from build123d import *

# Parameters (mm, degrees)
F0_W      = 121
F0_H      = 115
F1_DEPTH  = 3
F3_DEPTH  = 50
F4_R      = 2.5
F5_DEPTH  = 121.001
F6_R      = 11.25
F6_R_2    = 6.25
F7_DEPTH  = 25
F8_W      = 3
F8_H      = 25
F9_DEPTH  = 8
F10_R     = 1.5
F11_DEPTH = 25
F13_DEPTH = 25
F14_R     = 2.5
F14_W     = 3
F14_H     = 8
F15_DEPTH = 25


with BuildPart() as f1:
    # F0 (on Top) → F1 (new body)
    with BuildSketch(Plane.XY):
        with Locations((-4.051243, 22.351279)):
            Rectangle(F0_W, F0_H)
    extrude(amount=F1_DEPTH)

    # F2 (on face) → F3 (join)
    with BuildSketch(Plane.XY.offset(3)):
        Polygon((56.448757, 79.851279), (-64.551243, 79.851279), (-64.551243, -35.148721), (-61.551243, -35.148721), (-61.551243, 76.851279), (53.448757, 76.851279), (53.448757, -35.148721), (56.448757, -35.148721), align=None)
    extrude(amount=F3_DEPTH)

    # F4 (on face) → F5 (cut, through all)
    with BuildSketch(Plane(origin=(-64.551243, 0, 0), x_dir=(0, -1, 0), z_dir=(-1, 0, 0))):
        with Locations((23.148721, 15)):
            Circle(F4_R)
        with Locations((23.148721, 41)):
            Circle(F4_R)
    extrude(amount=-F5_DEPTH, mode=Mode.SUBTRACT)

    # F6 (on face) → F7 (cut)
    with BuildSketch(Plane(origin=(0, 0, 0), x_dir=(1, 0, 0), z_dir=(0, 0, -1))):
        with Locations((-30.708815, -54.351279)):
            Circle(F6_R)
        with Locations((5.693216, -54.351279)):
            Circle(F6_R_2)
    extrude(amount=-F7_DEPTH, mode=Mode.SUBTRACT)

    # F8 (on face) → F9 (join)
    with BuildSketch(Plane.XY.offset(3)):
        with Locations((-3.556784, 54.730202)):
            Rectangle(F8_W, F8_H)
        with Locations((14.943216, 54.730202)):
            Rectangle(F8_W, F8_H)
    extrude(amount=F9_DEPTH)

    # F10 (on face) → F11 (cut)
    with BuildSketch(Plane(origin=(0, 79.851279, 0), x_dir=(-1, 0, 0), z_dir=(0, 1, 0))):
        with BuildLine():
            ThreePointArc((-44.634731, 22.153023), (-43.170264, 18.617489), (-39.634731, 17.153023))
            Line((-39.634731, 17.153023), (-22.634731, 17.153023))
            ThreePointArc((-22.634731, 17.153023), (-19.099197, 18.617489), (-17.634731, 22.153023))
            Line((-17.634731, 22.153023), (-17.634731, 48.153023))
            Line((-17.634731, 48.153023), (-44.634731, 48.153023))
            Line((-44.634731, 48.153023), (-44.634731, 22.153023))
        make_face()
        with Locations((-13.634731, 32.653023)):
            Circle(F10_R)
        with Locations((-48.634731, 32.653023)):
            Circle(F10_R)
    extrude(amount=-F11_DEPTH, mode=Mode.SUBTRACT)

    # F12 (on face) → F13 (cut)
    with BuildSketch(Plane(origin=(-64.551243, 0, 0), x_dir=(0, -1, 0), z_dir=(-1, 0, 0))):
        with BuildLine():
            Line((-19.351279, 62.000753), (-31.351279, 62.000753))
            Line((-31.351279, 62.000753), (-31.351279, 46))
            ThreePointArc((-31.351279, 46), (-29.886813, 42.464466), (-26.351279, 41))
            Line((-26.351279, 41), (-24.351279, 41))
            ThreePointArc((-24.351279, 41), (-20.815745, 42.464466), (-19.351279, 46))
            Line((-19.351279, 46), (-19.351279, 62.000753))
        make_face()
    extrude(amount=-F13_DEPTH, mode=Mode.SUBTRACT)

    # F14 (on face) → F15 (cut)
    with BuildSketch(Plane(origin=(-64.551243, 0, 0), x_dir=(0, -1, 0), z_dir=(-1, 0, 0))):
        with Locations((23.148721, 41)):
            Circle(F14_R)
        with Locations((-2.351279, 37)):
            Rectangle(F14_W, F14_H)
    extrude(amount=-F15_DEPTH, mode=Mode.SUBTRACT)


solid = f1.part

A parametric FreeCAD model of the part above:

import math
import FreeCAD as App
import Part
import Sketcher
from FreeCAD import Vector
Q = App.Units.Quantity

doc = App.newDocument("Part")
body = doc.addObject("PartDesign::Body", "Body")

# Sketch on XY plane
sketch1 = body.newObject("Sketcher::SketchObject", "Sketch")
sketch1.AttachmentSupport = (doc.getObject("XY_Plane"), [""])
sketch1.MapMode = "FlatFace"
sketch1.addGeometry(Part.LineSegment(Vector(-65, 80, 0), Vector(-65, -35, 0)), False)
sketch1.addGeometry(Part.LineSegment(Vector(-65, -35, 0), Vector(56, -35, 0)), False)
sketch1.addGeometry(Part.LineSegment(Vector(56, -35, 0), Vector(56, 80, 0)), False)
sketch1.addGeometry(Part.LineSegment(Vector(56, 80, 0), Vector(-65, 80, 0)), False)
sketch1.addConstraint(Sketcher.Constraint("Coincident", 0, 2, 1, 1))
sketch1.addConstraint(Sketcher.Constraint("Coincident", 1, 2, 2, 1))
sketch1.addConstraint(Sketcher.Constraint("Coincident", 2, 2, 3, 1))
sketch1.addConstraint(Sketcher.Constraint("Coincident", 3, 2, 0, 1))
sketch1.addConstraint(Sketcher.Constraint("Vertical", 0))
sketch1.addConstraint(Sketcher.Constraint("Horizontal", 1))
sketch1.addConstraint(Sketcher.Constraint("Vertical", 2))
sketch1.addConstraint(Sketcher.Constraint("Horizontal", 3))
sketch1.addConstraint(Sketcher.Constraint("DistanceX", 1, 1, 1, 2, Q("121 mm")))
sketch1.addConstraint(Sketcher.Constraint("DistanceY", 0, 2, 0, 1, Q("115 mm")))
sketch1.addConstraint(Sketcher.Constraint("DistanceY", 0, 2, -1, 1, Q("35.148721 mm")))
sketch1.addConstraint(Sketcher.Constraint("DistanceX", 0, 2, -1, 1, Q("64.551243 mm")))
pad1 = body.newObject("PartDesign::Pad", "Pad")
pad1.Profile = sketch1
pad1.Length = 3

# Sketch on XY plane
sketch2 = body.newObject("Sketcher::SketchObject", "Sketch001")
sketch2.AttachmentSupport = (doc.getObject("XY_Plane"), [""])
sketch2.MapMode = "FlatFace"
sketch2.AttachmentOffset = App.Placement(Vector(0, 0, 3), App.Rotation())
sketch2.addGeometry(Part.LineSegment(Vector(56.4, 79.9, 0), Vector(-64.6, 79.9, 0)), False)
sketch2.addGeometry(Part.LineSegment(Vector(-64.6, 79.9, 0), Vector(-64.6, -35.1, 0)), False)
sketch2.addGeometry(Part.LineSegment(Vector(-64.6, -35.1, 0), Vector(-61.6, -35.1, 0)), False)
sketch2.addGeometry(Part.LineSegment(Vector(-61.6, -35.1, 0), Vector(-61.6, 76.9, 0)), False)
sketch2.addGeometry(Part.LineSegment(Vector(-61.6, 76.9, 0), Vector(53.4, 76.9, 0)), False)
sketch2.addGeometry(Part.LineSegment(Vector(53.4, 76.9, 0), Vector(53.4, -35.1, 0)), False)
sketch2.addGeometry(Part.LineSegment(Vector(53.4, -35.1, 0), Vector(56.4, -35.1, 0)), False)
sketch2.addGeometry(Part.LineSegment(Vector(56.4, -35.1, 0), Vector(56.4, 79.9, 0)), False)
sketch2.addConstraint(Sketcher.Constraint("Coincident", 0, 2, 1, 1))
sketch2.addConstraint(Sketcher.Constraint("Coincident", 1, 2, 2, 1))
sketch2.addConstraint(Sketcher.Constraint("Coincident", 2, 2, 3, 1))
sketch2.addConstraint(Sketcher.Constraint("Coincident", 3, 2, 4, 1))
sketch2.addConstraint(Sketcher.Constraint("Coincident", 4, 2, 5, 1))
sketch2.addConstraint(Sketcher.Constraint("Coincident", 5, 2, 6, 1))
sketch2.addConstraint(Sketcher.Constraint("Coincident", 6, 2, 7, 1))
sketch2.addConstraint(Sketcher.Constraint("Coincident", 7, 2, 0, 1))
sketch2.addConstraint(Sketcher.Constraint("Horizontal", 0))
sketch2.addConstraint(Sketcher.Constraint("Vertical", 1))
sketch2.addConstraint(Sketcher.Constraint("Horizontal", 2))
sketch2.addConstraint(Sketcher.Constraint("Vertical", 3))
sketch2.addConstraint(Sketcher.Constraint("Horizontal", 4))
sketch2.addConstraint(Sketcher.Constraint("Vertical", 5))
sketch2.addConstraint(Sketcher.Constraint("Horizontal", 6))
sketch2.addConstraint(Sketcher.Constraint("Vertical", 7))
sketch2.addConstraint(Sketcher.Constraint("Horizontal", 2, 2, 5, 2))
sketch2.addConstraint(Sketcher.Constraint("Equal", 2, 6))
sketch2.addConstraint(Sketcher.Constraint("Equal", 4, 1))
sketch2.addConstraint(Sketcher.Constraint("DistanceX", 0, 2, 0, 1, Q("121 mm")))
sketch2.addConstraint(Sketcher.Constraint("DistanceX", 2, 1, 2, 2, Q("3 mm")))
sketch2.addConstraint(Sketcher.Constraint("DistanceY", 3, 1, 3, 2, Q("112 mm")))
sketch2.addConstraint(Sketcher.Constraint("DistanceY", -1, 1, 0, 2, Q("79.851279 mm")))
sketch2.addConstraint(Sketcher.Constraint("DistanceX", 0, 2, -1, 1, Q("64.551243 mm")))
pad2 = body.newObject("PartDesign::Pad", "Pad001")
pad2.Profile = sketch2
pad2.Length = 50

# Sketch on YZ plane
sketch3 = body.newObject("Sketcher::SketchObject", "Sketch002")
sketch3.AttachmentSupport = (doc.getObject("YZ_Plane"), [""])
sketch3.MapMode = "FlatFace"
sketch3.AttachmentOffset = App.Placement(Vector(0, 0, -64.551243), App.Rotation())
sketch3.addGeometry(Part.Circle(Vector(-23.1, 15, 0), Vector(0, 0, 1), 2.5), False)
sketch3.addGeometry(Part.Circle(Vector(-23.1, 41, 0), Vector(0, 0, 1), 2.5), False)
sketch3.addConstraint(Sketcher.Constraint("Equal", 0, 1))
sketch3.addConstraint(Sketcher.Constraint("Vertical", 0, 3, 1, 3))
sketch3.addConstraint(Sketcher.Constraint("Diameter", 0, Q("5 mm")))
sketch3.addConstraint(Sketcher.Constraint("DistanceY", -1, 1, 0, 3, Q("15 mm")))
sketch3.addConstraint(Sketcher.Constraint("DistanceY", -1, 1, 1, 3, Q("41 mm")))
sketch3.addConstraint(Sketcher.Constraint("DistanceX", 0, 3, -1, 1, Q("23.148721 mm")))
pocket1 = body.newObject("PartDesign::Pocket", "Pocket")
pocket1.Profile = sketch3
pocket1.Type = "ThroughAll"
pocket1.Reversed = True

# Sketch on XY plane
sketch4 = body.newObject("Sketcher::SketchObject", "Sketch003")
sketch4.AttachmentSupport = (doc.getObject("XY_Plane"), [""])
sketch4.MapMode = "FlatFace"
sketch4.addGeometry(Part.Circle(Vector(-31, 54, 0), Vector(0, 0, 1), 11), False)
sketch4.addGeometry(Part.Circle(Vector(6, 54, 0), Vector(0, 0, 1), 6), False)
sketch4.addConstraint(Sketcher.Constraint("Horizontal", 0, 3, 1, 3))
sketch4.addConstraint(Sketcher.Constraint("Diameter", 0, Q("22.5 mm")))
sketch4.addConstraint(Sketcher.Constraint("Diameter", 1, Q("12.5 mm")))
sketch4.addConstraint(Sketcher.Constraint("DistanceY", -1, 1, 0, 3, Q("54.351279 mm")))
sketch4.addConstraint(Sketcher.Constraint("DistanceX", 0, 3, 1, 3, Q("36.402031 mm")))
sketch4.addConstraint(Sketcher.Constraint("DistanceX", 0, 3, -1, 1, Q("30.708815 mm")))
pocket2 = body.newObject("PartDesign::Pocket", "Pocket001")
pocket2.Profile = sketch4
pocket2.Length = 25
pocket2.Reversed = True

# Sketch on XY plane
sketch5 = body.newObject("Sketcher::SketchObject", "Sketch004")
sketch5.AttachmentSupport = (doc.getObject("XY_Plane"), [""])
sketch5.MapMode = "FlatFace"
sketch5.AttachmentOffset = App.Placement(Vector(0, 0, 3), App.Rotation())
sketch5.addGeometry(Part.LineSegment(Vector(-5.1, 67.2, 0), Vector(-5.1, 42.2, 0)), False)
sketch5.addGeometry(Part.LineSegment(Vector(-5.1, 42.2, 0), Vector(-2.1, 42.2, 0)), False)
sketch5.addGeometry(Part.LineSegment(Vector(-2.1, 42.2, 0), Vector(-2.1, 67.2, 0)), False)
sketch5.addGeometry(Part.LineSegment(Vector(-2.1, 67.2, 0), Vector(-5.1, 67.2, 0)), False)
sketch5.addGeometry(Part.LineSegment(Vector(13.4, 67.2, 0), Vector(13.4, 42.2, 0)), False)
sketch5.addGeometry(Part.LineSegment(Vector(13.4, 42.2, 0), Vector(16.4, 42.2, 0)), False)
sketch5.addGeometry(Part.LineSegment(Vector(16.4, 42.2, 0), Vector(16.4, 67.2, 0)), False)
sketch5.addGeometry(Part.LineSegment(Vector(16.4, 67.2, 0), Vector(13.4, 67.2, 0)), False)
sketch5.addConstraint(Sketcher.Constraint("Coincident", 0, 2, 1, 1))
sketch5.addConstraint(Sketcher.Constraint("Coincident", 1, 2, 2, 1))
sketch5.addConstraint(Sketcher.Constraint("Coincident", 2, 2, 3, 1))
sketch5.addConstraint(Sketcher.Constraint("Coincident", 3, 2, 0, 1))
sketch5.addConstraint(Sketcher.Constraint("Coincident", 4, 2, 5, 1))
sketch5.addConstraint(Sketcher.Constraint("Coincident", 5, 2, 6, 1))
sketch5.addConstraint(Sketcher.Constraint("Coincident", 6, 2, 7, 1))
sketch5.addConstraint(Sketcher.Constraint("Coincident", 7, 2, 4, 1))
sketch5.addConstraint(Sketcher.Constraint("Vertical", 0))
sketch5.addConstraint(Sketcher.Constraint("Horizontal", 1))
sketch5.addConstraint(Sketcher.Constraint("Vertical", 2))
sketch5.addConstraint(Sketcher.Constraint("Horizontal", 3))
sketch5.addConstraint(Sketcher.Constraint("Vertical", 4))
sketch5.addConstraint(Sketcher.Constraint("Horizontal", 5))
sketch5.addConstraint(Sketcher.Constraint("Vertical", 6))
sketch5.addConstraint(Sketcher.Constraint("Horizontal", 7))
sketch5.addConstraint(Sketcher.Constraint("Horizontal", 1, 2, 4, 2))
sketch5.addConstraint(Sketcher.Constraint("Horizontal", 3, 2, 6, 2))
sketch5.addConstraint(Sketcher.Constraint("Equal", 3, 5))
sketch5.addConstraint(Sketcher.Constraint("DistanceX", 1, 1, 1, 2, Q("3 mm")))
sketch5.addConstraint(Sketcher.Constraint("DistanceY", 0, 2, 0, 1, Q("25 mm")))
sketch5.addConstraint(Sketcher.Constraint("DistanceX", 1, 2, 4, 2, Q("15.5 mm")))
sketch5.addConstraint(Sketcher.Constraint("DistanceY", -1, 1, 0, 2, Q("42.230202 mm")))
sketch5.addConstraint(Sketcher.Constraint("DistanceX", 0, 2, -1, 1, Q("5.056784 mm")))
pad3 = body.newObject("PartDesign::Pad", "Pad002")
pad3.Profile = sketch5
pad3.Length = 8

# Sketch on XZ plane
sketch6 = body.newObject("Sketcher::SketchObject", "Sketch005")
sketch6.AttachmentSupport = (doc.getObject("XZ_Plane"), [""])
sketch6.MapMode = "FlatFace"
sketch6.AttachmentOffset = App.Placement(Vector(0, 0, -79.851279), App.Rotation())
sketch6.addGeometry(Part.ArcOfCircle(Part.Circle(Vector(39.6, 22.2, 0), Vector(0, 0, 1), 5), math.radians(-90), math.radians(0)), False)
sketch6.addGeometry(Part.LineSegment(Vector(39.6, 17.2, 0), Vector(22.6, 17.2, 0)), False)
sketch6.addGeometry(Part.ArcOfCircle(Part.Circle(Vector(22.6, 22.2, 0), Vector(0, 0, 1), 5), math.radians(180), math.radians(270)), False)
sketch6.addGeometry(Part.LineSegment(Vector(17.6, 22.2, 0), Vector(17.6, 48.2, 0)), False)
sketch6.addGeometry(Part.LineSegment(Vector(17.6, 48.2, 0), Vector(44.6, 48.2, 0)), False)
sketch6.addGeometry(Part.LineSegment(Vector(44.6, 48.2, 0), Vector(44.6, 22.2, 0)), False)
sketch6.addGeometry(Part.Circle(Vector(13.6, 32.7, 0), Vector(0, 0, 1), 1.5), False)
sketch6.addGeometry(Part.Circle(Vector(48.6, 32.7, 0), Vector(0, 0, 1), 1.5), False)
sketch6.addConstraint(Sketcher.Constraint("Tangent", 0, 1, 1, 1))
sketch6.addConstraint(Sketcher.Constraint("Tangent", 1, 2, 2, 2))
sketch6.addConstraint(Sketcher.Constraint("Tangent", 2, 1, 3, 1))
sketch6.addConstraint(Sketcher.Constraint("Coincident", 3, 2, 4, 1))
sketch6.addConstraint(Sketcher.Constraint("Coincident", 4, 2, 5, 1))
sketch6.addConstraint(Sketcher.Constraint("Tangent", 5, 2, 0, 2))
sketch6.addConstraint(Sketcher.Constraint("Horizontal", 1))
sketch6.addConstraint(Sketcher.Constraint("Vertical", 3))
sketch6.addConstraint(Sketcher.Constraint("Horizontal", 4))
sketch6.addConstraint(Sketcher.Constraint("Vertical", 5))
sketch6.addConstraint(Sketcher.Constraint("Equal", 0, 2))
sketch6.addConstraint(Sketcher.Constraint("Equal", 6, 7))
sketch6.addConstraint(Sketcher.Constraint("Horizontal", 6, 3, 7, 3))
sketch6.addConstraint(Sketcher.Constraint("Diameter", 6, Q("3 mm")))
sketch6.addConstraint(Sketcher.Constraint("Radius", 0, Q("5.000001 mm")))
sketch6.addConstraint(Sketcher.Constraint("DistanceX", 1, 2, 1, 1, Q("17 mm")))
sketch6.addConstraint(Sketcher.Constraint("DistanceY", 3, 1, 3, 2, Q("26 mm")))
sketch6.addConstraint(Sketcher.Constraint("DistanceX", 6, 3, 2, 3, Q("9 mm")))
sketch6.addConstraint(Sketcher.Constraint("DistanceX", 0, 3, 7, 3, Q("9.000001 mm")))
sketch6.addConstraint(Sketcher.Constraint("DistanceY", 2, 3, 6, 3, Q("10.5 mm")))
sketch6.addConstraint(Sketcher.Constraint("DistanceX", -1, 1, 0, 3, Q("39.63473 mm")))
sketch6.addConstraint(Sketcher.Constraint("DistanceY", -1, 1, 0, 3, Q("22.153024 mm")))
pocket3 = body.newObject("PartDesign::Pocket", "Pocket002")
pocket3.Profile = sketch6
pocket3.Length = 25
pocket3.Reversed = True

# Sketch on YZ plane
sketch7 = body.newObject("Sketcher::SketchObject", "Sketch006")
sketch7.AttachmentSupport = (doc.getObject("YZ_Plane"), [""])
sketch7.MapMode = "FlatFace"
sketch7.AttachmentOffset = App.Placement(Vector(0, 0, -64.551243), App.Rotation())
sketch7.addGeometry(Part.LineSegment(Vector(19.4, 62, 0), Vector(31.4, 62, 0)), False)
sketch7.addGeometry(Part.LineSegment(Vector(31.4, 62, 0), Vector(31.4, 46, 0)), False)
sketch7.addGeometry(Part.ArcOfCircle(Part.Circle(Vector(26.4, 46, 0), Vector(0, 0, 1), 5), math.radians(-90), math.radians(0)), False)
sketch7.addGeometry(Part.LineSegment(Vector(26.4, 41, 0), Vector(24.4, 41, 0)), False)
sketch7.addGeometry(Part.ArcOfCircle(Part.Circle(Vector(24.4, 46, 0), Vector(0, 0, 1), 5), math.radians(180), math.radians(270)), False)
sketch7.addGeometry(Part.LineSegment(Vector(19.4, 46, 0), Vector(19.4, 62, 0)), False)
sketch7.addConstraint(Sketcher.Constraint("Coincident", 0, 2, 1, 1))
sketch7.addConstraint(Sketcher.Constraint("Tangent", 1, 2, 2, 2))
sketch7.addConstraint(Sketcher.Constraint("Tangent", 2, 1, 3, 1))
sketch7.addConstraint(Sketcher.Constraint("Tangent", 3, 2, 4, 2))
sketch7.addConstraint(Sketcher.Constraint("Tangent", 4, 1, 5, 1))
sketch7.addConstraint(Sketcher.Constraint("Coincident", 5, 2, 0, 1))
sketch7.addConstraint(Sketcher.Constraint("Horizontal", 0))
sketch7.addConstraint(Sketcher.Constraint("Vertical", 1))
sketch7.addConstraint(Sketcher.Constraint("Horizontal", 3))
sketch7.addConstraint(Sketcher.Constraint("Vertical", 5))
sketch7.addConstraint(Sketcher.Constraint("Equal", 2, 4))
sketch7.addConstraint(Sketcher.Constraint("Radius", 2, Q("5 mm")))
sketch7.addConstraint(Sketcher.Constraint("DistanceX", 0, 1, 0, 2, Q("12 mm")))
sketch7.addConstraint(Sketcher.Constraint("DistanceY", -1, 1, 2, 3, Q("46 mm")))
sketch7.addConstraint(Sketcher.Constraint("DistanceY", 1, 2, 1, 1, Q("16.000753 mm")))
sketch7.addConstraint(Sketcher.Constraint("DistanceX", -1, 1, 2, 3, Q("26.351279 mm")))
pocket4 = body.newObject("PartDesign::Pocket", "Pocket003")
pocket4.Profile = sketch7
pocket4.Length = 25
pocket4.Reversed = True

# Sketch on YZ plane
sketch8 = body.newObject("Sketcher::SketchObject", "Sketch007")
sketch8.AttachmentSupport = (doc.getObject("YZ_Plane"), [""])
sketch8.MapMode = "FlatFace"
sketch8.AttachmentOffset = App.Placement(Vector(0, 0, -64.551243), App.Rotation())
sketch8.addGeometry(Part.Circle(Vector(-23.1, 41, 0), Vector(0, 0, 1), 2.5), False)
sketch8.addGeometry(Part.LineSegment(Vector(3.9, 41, 0), Vector(3.9, 33, 0)), False)
sketch8.addGeometry(Part.LineSegment(Vector(3.9, 33, 0), Vector(0.9, 33, 0)), False)
sketch8.addGeometry(Part.LineSegment(Vector(0.9, 33, 0), Vector(0.9, 41, 0)), False)
sketch8.addGeometry(Part.LineSegment(Vector(0.9, 41, 0), Vector(3.9, 41, 0)), False)
sketch8.addConstraint(Sketcher.Constraint("Coincident", 1, 2, 2, 1))
sketch8.addConstraint(Sketcher.Constraint("Coincident", 2, 2, 3, 1))
sketch8.addConstraint(Sketcher.Constraint("Coincident", 3, 2, 4, 1))
sketch8.addConstraint(Sketcher.Constraint("Coincident", 4, 2, 1, 1))
sketch8.addConstraint(Sketcher.Constraint("Vertical", 1))
sketch8.addConstraint(Sketcher.Constraint("Horizontal", 2))
sketch8.addConstraint(Sketcher.Constraint("Vertical", 3))
sketch8.addConstraint(Sketcher.Constraint("Horizontal", 4))
sketch8.addConstraint(Sketcher.Constraint("Horizontal", 0, 3, 3, 2))
sketch8.addConstraint(Sketcher.Constraint("Diameter", 0, Q("5 mm")))
sketch8.addConstraint(Sketcher.Constraint("DistanceX", 2, 2, 2, 1, Q("3 mm")))
sketch8.addConstraint(Sketcher.Constraint("DistanceY", 1, 2, 1, 1, Q("8 mm")))
sketch8.addConstraint(Sketcher.Constraint("DistanceY", -1, 1, 0, 3, Q("41 mm")))
sketch8.addConstraint(Sketcher.Constraint("DistanceX", 0, 3, 1, 2, Q("27 mm")))
sketch8.addConstraint(Sketcher.Constraint("DistanceX", 0, 3, -1, 1, Q("23.148721 mm")))
pocket5 = body.newObject("PartDesign::Pocket", "Pocket004")
pocket5.Profile = sketch8
pocket5.Length = 25
pocket5.Reversed = True

doc.recompute()
